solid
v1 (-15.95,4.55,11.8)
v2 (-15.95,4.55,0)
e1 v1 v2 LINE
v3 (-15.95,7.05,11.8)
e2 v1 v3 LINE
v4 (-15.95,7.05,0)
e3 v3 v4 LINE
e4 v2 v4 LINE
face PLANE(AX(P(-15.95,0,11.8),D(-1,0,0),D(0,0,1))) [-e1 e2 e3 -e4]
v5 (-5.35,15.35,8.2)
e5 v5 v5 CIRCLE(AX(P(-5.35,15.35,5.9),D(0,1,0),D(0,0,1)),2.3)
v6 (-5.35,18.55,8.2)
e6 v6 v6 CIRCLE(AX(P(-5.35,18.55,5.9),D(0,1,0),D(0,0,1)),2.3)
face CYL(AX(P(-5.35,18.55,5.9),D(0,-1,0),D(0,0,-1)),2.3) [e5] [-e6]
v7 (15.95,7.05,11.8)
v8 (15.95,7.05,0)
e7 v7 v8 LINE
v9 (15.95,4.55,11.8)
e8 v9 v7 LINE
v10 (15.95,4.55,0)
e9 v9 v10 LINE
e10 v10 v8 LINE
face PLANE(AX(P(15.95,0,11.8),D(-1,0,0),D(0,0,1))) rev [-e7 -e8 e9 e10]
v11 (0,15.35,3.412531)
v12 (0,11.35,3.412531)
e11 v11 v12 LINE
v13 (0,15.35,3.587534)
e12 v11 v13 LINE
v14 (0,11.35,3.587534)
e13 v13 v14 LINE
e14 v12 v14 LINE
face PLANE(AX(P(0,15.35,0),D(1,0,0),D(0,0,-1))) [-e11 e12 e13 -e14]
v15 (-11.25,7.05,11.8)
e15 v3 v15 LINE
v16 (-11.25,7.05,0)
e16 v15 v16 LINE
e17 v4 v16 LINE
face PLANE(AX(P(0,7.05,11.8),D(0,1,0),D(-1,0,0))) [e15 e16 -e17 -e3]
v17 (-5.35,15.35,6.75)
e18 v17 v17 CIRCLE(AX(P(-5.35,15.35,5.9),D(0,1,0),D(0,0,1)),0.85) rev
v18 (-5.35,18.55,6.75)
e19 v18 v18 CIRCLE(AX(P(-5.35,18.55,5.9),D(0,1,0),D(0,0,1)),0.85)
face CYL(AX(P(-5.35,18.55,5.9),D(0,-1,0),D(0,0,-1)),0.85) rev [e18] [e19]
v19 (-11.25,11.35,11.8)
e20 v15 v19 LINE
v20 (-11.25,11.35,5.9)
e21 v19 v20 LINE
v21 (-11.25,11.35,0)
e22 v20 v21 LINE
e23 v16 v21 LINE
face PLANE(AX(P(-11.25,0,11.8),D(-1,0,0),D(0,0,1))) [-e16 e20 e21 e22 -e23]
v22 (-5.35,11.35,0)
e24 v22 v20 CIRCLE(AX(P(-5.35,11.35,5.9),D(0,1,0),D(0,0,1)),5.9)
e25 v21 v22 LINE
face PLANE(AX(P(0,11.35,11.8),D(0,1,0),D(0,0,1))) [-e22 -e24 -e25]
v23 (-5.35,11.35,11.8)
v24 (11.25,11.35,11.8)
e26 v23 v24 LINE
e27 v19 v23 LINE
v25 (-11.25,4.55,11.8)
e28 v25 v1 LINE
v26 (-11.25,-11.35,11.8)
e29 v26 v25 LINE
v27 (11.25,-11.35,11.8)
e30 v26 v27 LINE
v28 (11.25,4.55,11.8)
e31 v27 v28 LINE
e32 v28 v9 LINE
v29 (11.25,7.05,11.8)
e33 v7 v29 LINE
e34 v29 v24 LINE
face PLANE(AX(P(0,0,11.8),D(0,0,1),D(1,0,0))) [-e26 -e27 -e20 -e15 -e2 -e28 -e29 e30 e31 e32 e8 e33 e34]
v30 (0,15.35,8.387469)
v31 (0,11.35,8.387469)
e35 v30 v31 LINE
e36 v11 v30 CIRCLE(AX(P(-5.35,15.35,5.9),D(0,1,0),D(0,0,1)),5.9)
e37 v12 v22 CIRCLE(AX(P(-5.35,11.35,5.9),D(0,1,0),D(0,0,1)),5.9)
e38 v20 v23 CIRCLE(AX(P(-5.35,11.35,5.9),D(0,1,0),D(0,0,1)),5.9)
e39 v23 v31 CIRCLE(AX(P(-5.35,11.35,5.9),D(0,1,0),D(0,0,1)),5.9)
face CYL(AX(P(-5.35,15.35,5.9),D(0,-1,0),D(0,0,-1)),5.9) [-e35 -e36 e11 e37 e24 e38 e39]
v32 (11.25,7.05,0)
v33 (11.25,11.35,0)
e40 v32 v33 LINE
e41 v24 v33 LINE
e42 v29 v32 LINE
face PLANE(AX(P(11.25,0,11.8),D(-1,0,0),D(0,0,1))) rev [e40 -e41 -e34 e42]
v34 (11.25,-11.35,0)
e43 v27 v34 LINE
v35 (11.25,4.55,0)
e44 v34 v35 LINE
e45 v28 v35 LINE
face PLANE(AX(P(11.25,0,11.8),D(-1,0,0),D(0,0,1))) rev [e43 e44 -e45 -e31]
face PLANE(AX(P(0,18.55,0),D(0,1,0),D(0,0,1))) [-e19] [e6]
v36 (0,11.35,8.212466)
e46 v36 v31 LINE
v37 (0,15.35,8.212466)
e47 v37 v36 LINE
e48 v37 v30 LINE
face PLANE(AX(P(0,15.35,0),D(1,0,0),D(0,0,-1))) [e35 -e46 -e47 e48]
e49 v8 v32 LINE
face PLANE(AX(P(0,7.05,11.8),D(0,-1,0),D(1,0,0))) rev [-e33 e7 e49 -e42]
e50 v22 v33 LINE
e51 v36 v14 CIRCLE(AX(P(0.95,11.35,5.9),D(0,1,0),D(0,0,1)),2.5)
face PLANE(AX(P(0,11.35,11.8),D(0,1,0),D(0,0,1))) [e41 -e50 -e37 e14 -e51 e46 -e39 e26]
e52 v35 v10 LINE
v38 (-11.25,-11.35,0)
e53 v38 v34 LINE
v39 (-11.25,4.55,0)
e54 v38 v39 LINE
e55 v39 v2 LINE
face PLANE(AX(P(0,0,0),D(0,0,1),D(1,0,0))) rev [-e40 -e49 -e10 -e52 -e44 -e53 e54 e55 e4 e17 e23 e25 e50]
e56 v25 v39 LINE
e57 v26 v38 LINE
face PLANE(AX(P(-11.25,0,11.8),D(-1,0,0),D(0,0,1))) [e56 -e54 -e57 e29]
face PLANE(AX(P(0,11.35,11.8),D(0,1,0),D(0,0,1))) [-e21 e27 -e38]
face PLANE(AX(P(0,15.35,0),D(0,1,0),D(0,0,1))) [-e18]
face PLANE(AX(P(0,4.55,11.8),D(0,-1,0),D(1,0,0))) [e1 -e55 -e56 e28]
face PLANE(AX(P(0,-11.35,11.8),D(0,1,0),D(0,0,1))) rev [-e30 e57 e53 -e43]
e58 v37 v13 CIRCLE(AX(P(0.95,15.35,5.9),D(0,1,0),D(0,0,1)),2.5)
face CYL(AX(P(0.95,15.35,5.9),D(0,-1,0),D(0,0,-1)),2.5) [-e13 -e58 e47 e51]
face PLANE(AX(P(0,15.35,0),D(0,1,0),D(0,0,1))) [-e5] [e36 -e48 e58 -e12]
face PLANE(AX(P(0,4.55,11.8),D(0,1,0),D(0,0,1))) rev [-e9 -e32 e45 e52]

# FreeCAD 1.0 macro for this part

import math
import FreeCAD as App
import Part
import Sketcher

V = App.Vector
Q = App.Units.Quantity


def add_polygon(sketch, points):
    """Adds a closed chain of lines whose ends are joined by coincident constraints."""
    first, n = sketch.GeometryCount, len(points)
    for a, b in zip(points, points[1:] + points[:1]):
        sketch.addGeometry(Part.LineSegment(App.Vector(*a, 0), App.Vector(*b, 0)), False)
    for i in range(n):
        sketch.addConstraint(Sketcher.Constraint("Coincident", first + i, 2, first + (i + 1) % n, 1))

doc = App.newDocument("Part")
params = doc.addObject("Spreadsheet::Sheet", "Params")
for row, (alias, value) in enumerate([
    ("sketch1_width", "4.7 mm"),
    ("sketch1_width2", "22.5 mm"),
    ("sketch1_height", "2.5 mm"),
    ("sketch1_height2", "15.9 mm"),
    ("sketch1_height3", "4.3 mm"),
    ("pad1_length", "11.8 mm"),
    ("sketch2_radius", "2.5 mm"),
    ("sketch2_radius2", "5.9 mm"),
    ("pad2_length", "4 mm"),
    ("sketch3_diameter", "4.6 mm"),
    ("sketch3_diameter2", "1.7 mm"),
    ("pad3_length", "3.2 mm"),
], start=1):
    params.set(f"A{row}", alias)
    params.set(f"B{row}", "=" + value)
    params.setAlias(f"B{row}", alias)

body = doc.addObject("PartDesign::Body", "Body")

sketch1 = doc.addObject("Sketcher::SketchObject", "Sketch")
body.addObject(sketch1)
sketch1.AttachmentSupport = (doc.XY_Plane, [""])
sketch1.MapMode = "FlatFace"
add_polygon(sketch1, [(-15.95, 7.05), (-15.95, 4.55), (-11.25, 4.55), (-11.25, -11.35), (11.25, -11.35), (11.25, 4.55), (15.95, 4.55), (15.95, 7.05), (11.25, 7.05), (11.25, 11.35), (-11.25, 11.35), (-11.25, 7.05)])
sketch1.addConstraint(Sketcher.Constraint("Vertical", 0))
sketch1.addConstraint(Sketcher.Constraint("Horizontal", 1))
sketch1.addConstraint(Sketcher.Constraint("Vertical", 2))
sketch1.addConstraint(Sketcher.Constraint("Horizontal", 3))
sketch1.addConstraint(Sketcher.Constraint("Vertical", 4))
sketch1.addConstraint(Sketcher.Constraint("Horizontal", 5))
sketch1.addConstraint(Sketcher.Constraint("Vertical", 6))
sketch1.addConstraint(Sketcher.Constraint("Horizontal", 7))
sketch1.addConstraint(Sketcher.Constraint("Vertical", 8))
sketch1.addConstraint(Sketcher.Constraint("Horizontal", 9))
sketch1.addConstraint(Sketcher.Constraint("Vertical", 10))
sketch1.addConstraint(Sketcher.Constraint("Horizontal", 11))
sketch1.addConstraint(Sketcher.Constraint("Symmetric", 2, 2, 8, 2, -1, 1))
sketch1.addConstraint(Sketcher.Constraint("Symmetric", 1, 2, 4, 2, -2))
sketch1.addConstraint(Sketcher.Constraint("Symmetric", 7, 2, 10, 2, -2))
sketch1.addConstraint(Sketcher.Constraint("Equal", 1, 5))
sketch1.addConstraint(Sketcher.Constraint("DistanceX", 1, 1, 1, 2, Q("4.7 mm")))
sketch1.addConstraint(Sketcher.Constraint("DistanceX", 3, 1, 3, 2, Q("22.5 mm")))
sketch1.addConstraint(Sketcher.Constraint("DistanceY", 0, 2, 0, 1, Q("2.5 mm")))
sketch1.addConstraint(Sketcher.Constraint("DistanceY", 2, 2, 2, 1, Q("15.9 mm")))
sketch1.addConstraint(Sketcher.Constraint("DistanceY", 8, 1, 8, 2, Q("4.3 mm")))
sketch1.setExpression("Constraints[28]", "Params.sketch1_width")
sketch1.setExpression("Constraints[29]", "Params.sketch1_width2")
sketch1.setExpression("Constraints[30]", "Params.sketch1_height")
sketch1.setExpression("Constraints[31]", "Params.sketch1_height2")
sketch1.setExpression("Constraints[32]", "Params.sketch1_height3")
pad1 = doc.addObject("PartDesign::Pad", "Pad")
body.addObject(pad1)
pad1.Profile = sketch1
pad1.setExpression("Length", "Params.pad1_length")

sketch2 = doc.addObject("Sketcher::SketchObject", "Sketch001")
body.addObject(sketch2)
sketch2.AttachmentSupport = (doc.XZ_Plane, [""])
sketch2.MapMode = "FlatFace"
sketch2.AttachmentOffset = App.Placement(V(0, 0, -11.35), App.Rotation())
sketch2.addGeometry(Part.ArcOfCircle(Part.Circle(V(0.95, 5.9, 0), V(0, 0, 1), 2.5), math.radians(0), math.radians(110.691333)), False)
sketch2.addGeometry(Part.ArcOfCircle(Part.Circle(V(0.95, 5.9, 0), V(0, 0, 1), 2.5), math.radians(-110.691333), math.radians(0)), False)
sketch2.addGeometry(Part.ArcOfCircle(Part.Circle(V(0.949999, 5.899997, 0), V(0, 0, 1), 2.499997), math.radians(-112.333683), math.radians(-110.691331)), False)
sketch2.addGeometry(Part.LineSegment(V(0, 3.587534, 0), V(0, 3.412531, 0)), False)
sketch2.addGeometry(Part.ArcOfCircle(Part.Circle(V(-5.35, 5.9, 0), V(0, 0, 1), 5.9), math.radians(180), math.radians(335.06405)), False)
sketch2.addGeometry(Part.ArcOfCircle(Part.Circle(V(-5.35, 5.9, 0), V(0, 0, 1), 5.9), math.radians(24.93595), math.radians(180)), False)
sketch2.addGeometry(Part.LineSegment(V(0, 8.387469, 0), V(0, 8.212466, 0)), False)
sketch2.addGeometry(Part.ArcOfCircle(Part.Circle(V(0.949999, 5.900003, 0), V(0, 0, 1), 2.499997), math.radians(110.691331), math.radians(112.333683)), False)
sketch2.addConstraint(Sketcher.Constraint("Tangent", 0, 1, 1, 2))
sketch2.addConstraint(Sketcher.Constraint("Tangent", 1, 1, 2, 2))
sketch2.addConstraint(Sketcher.Constraint("Coincident", 2, 1, 3, 1))
sketch2.addConstraint(Sketcher.Constraint("Coincident", 3, 2, 4, 2))
sketch2.addConstraint(Sketcher.Constraint("Tangent", 4, 1, 5, 2))
sketch2.addConstraint(Sketcher.Constraint("Coincident", 5, 1, 6, 1))
sketch2.addConstraint(Sketcher.Constraint("Coincident", 6, 2, 7, 2))
sketch2.addConstraint(Sketcher.Constraint("Tangent", 7, 1, 0, 2))
sketch2.addConstraint(Sketcher.Constraint("Vertical", 3))
sketch2.addConstraint(Sketcher.Constraint("Vertical", 6))
sketch2.addConstraint(Sketcher.Constraint("Coincident", 2, 3, 0, 3))
sketch2.addConstraint(Sketcher.Constraint("Equal", 4, 5))
sketch2.addConstraint(Sketcher.Constraint("Equal", 2, 7))
sketch2.addConstraint(Sketcher.Constraint("PointOnObject", 2, 1, -2))
sketch2.addConstraint(Sketcher.Constraint("PointOnObject", 5, 1, -2))
sketch2.addConstraint(Sketcher.Constraint("Horizontal", 1, 3, 4, 3))
sketch2.addConstraint(Sketcher.Constraint("Horizontal", 5, 3, 0, 1))
sketch2.addConstraint(Sketcher.Constraint("Horizontal", 0, 1, 4, 1))
sketch2.addConstraint(Sketcher.Constraint("Vertical", 1, 1, 7, 1))
sketch2.addConstraint(Sketcher.Constraint("Radius", 0, Q("2.5 mm")))
sketch2.addConstraint(Sketcher.Constraint("Radius", 4, Q("5.9 mm")))
sketch2.addConstraint(Sketcher.Constraint("DistanceY", -1, 1, 0, 3, Q("5.9 mm")))
sketch2.addConstraint(Sketcher.Constraint("DistanceX", 4, 3, 2, 3, Q("6.299999 mm")))
sketch2.addConstraint(Sketcher.Constraint("DistanceX", -1, 1, 0, 3, Q("0.95 mm")))
sketch2.addConstraint(Sketcher.Constraint("DistanceY", 1, 1, 2, 3, Q("2.338741 mm")))
sketch2.setExpression("Constraints[19]", "Params.sketch2_radius")
sketch2.setExpression("Constraints[20]", "Params.sketch2_radius2")
pad2 = doc.addObject("PartDesign::Pad", "Pad001")
body.addObject(pad2)
pad2.Profile = sketch2
pad2.setExpression("Length", "Params.pad2_length")
pad2.Reversed = True

sketch3 = doc.addObject("Sketcher::SketchObject", "Sketch002")
body.addObject(sketch3)
sketch3.AttachmentSupport = (doc.XZ_Plane, [""])
sketch3.MapMode = "FlatFace"
sketch3.AttachmentOffset = App.Placement(V(0, 0, -15.35), App.Rotation())
sketch3.addGeometry(Part.Circle(V(-5.35, 5.9, 0), V(0, 0, 1), 2.3), False)
sketch3.addGeometry(Part.Circle(V(-5.35, 5.9, 0), V(0, 0, 1), 0.85), False)
sketch3.addConstraint(Sketcher.Constraint("Coincident", 1, 3, 0, 3))
sketch3.addConstraint(Sketcher.Constraint("Diameter", 0, Q("4.6 mm")))
sketch3.addConstraint(Sketcher.Constraint("Diameter", 1, Q("1.7 mm")))
sketch3.addConstraint(Sketcher.Constraint("DistanceY", -1, 1, 0, 3, Q("5.9 mm")))
sketch3.addConstraint(Sketcher.Constraint("DistanceX", 0, 3, -1, 1, Q("5.35 mm")))
sketch3.setExpression("Constraints[1]", "Params.sketch3_diameter")
sketch3.setExpression("Constraints[2]", "Params.sketch3_diameter2")
pad3 = doc.addObject("PartDesign::Pad", "Pad002")
body.addObject(pad3)
pad3.Profile = sketch3
pad3.setExpression("Length", "Params.pad3_length")
pad3.Reversed = True

doc.recompute()
